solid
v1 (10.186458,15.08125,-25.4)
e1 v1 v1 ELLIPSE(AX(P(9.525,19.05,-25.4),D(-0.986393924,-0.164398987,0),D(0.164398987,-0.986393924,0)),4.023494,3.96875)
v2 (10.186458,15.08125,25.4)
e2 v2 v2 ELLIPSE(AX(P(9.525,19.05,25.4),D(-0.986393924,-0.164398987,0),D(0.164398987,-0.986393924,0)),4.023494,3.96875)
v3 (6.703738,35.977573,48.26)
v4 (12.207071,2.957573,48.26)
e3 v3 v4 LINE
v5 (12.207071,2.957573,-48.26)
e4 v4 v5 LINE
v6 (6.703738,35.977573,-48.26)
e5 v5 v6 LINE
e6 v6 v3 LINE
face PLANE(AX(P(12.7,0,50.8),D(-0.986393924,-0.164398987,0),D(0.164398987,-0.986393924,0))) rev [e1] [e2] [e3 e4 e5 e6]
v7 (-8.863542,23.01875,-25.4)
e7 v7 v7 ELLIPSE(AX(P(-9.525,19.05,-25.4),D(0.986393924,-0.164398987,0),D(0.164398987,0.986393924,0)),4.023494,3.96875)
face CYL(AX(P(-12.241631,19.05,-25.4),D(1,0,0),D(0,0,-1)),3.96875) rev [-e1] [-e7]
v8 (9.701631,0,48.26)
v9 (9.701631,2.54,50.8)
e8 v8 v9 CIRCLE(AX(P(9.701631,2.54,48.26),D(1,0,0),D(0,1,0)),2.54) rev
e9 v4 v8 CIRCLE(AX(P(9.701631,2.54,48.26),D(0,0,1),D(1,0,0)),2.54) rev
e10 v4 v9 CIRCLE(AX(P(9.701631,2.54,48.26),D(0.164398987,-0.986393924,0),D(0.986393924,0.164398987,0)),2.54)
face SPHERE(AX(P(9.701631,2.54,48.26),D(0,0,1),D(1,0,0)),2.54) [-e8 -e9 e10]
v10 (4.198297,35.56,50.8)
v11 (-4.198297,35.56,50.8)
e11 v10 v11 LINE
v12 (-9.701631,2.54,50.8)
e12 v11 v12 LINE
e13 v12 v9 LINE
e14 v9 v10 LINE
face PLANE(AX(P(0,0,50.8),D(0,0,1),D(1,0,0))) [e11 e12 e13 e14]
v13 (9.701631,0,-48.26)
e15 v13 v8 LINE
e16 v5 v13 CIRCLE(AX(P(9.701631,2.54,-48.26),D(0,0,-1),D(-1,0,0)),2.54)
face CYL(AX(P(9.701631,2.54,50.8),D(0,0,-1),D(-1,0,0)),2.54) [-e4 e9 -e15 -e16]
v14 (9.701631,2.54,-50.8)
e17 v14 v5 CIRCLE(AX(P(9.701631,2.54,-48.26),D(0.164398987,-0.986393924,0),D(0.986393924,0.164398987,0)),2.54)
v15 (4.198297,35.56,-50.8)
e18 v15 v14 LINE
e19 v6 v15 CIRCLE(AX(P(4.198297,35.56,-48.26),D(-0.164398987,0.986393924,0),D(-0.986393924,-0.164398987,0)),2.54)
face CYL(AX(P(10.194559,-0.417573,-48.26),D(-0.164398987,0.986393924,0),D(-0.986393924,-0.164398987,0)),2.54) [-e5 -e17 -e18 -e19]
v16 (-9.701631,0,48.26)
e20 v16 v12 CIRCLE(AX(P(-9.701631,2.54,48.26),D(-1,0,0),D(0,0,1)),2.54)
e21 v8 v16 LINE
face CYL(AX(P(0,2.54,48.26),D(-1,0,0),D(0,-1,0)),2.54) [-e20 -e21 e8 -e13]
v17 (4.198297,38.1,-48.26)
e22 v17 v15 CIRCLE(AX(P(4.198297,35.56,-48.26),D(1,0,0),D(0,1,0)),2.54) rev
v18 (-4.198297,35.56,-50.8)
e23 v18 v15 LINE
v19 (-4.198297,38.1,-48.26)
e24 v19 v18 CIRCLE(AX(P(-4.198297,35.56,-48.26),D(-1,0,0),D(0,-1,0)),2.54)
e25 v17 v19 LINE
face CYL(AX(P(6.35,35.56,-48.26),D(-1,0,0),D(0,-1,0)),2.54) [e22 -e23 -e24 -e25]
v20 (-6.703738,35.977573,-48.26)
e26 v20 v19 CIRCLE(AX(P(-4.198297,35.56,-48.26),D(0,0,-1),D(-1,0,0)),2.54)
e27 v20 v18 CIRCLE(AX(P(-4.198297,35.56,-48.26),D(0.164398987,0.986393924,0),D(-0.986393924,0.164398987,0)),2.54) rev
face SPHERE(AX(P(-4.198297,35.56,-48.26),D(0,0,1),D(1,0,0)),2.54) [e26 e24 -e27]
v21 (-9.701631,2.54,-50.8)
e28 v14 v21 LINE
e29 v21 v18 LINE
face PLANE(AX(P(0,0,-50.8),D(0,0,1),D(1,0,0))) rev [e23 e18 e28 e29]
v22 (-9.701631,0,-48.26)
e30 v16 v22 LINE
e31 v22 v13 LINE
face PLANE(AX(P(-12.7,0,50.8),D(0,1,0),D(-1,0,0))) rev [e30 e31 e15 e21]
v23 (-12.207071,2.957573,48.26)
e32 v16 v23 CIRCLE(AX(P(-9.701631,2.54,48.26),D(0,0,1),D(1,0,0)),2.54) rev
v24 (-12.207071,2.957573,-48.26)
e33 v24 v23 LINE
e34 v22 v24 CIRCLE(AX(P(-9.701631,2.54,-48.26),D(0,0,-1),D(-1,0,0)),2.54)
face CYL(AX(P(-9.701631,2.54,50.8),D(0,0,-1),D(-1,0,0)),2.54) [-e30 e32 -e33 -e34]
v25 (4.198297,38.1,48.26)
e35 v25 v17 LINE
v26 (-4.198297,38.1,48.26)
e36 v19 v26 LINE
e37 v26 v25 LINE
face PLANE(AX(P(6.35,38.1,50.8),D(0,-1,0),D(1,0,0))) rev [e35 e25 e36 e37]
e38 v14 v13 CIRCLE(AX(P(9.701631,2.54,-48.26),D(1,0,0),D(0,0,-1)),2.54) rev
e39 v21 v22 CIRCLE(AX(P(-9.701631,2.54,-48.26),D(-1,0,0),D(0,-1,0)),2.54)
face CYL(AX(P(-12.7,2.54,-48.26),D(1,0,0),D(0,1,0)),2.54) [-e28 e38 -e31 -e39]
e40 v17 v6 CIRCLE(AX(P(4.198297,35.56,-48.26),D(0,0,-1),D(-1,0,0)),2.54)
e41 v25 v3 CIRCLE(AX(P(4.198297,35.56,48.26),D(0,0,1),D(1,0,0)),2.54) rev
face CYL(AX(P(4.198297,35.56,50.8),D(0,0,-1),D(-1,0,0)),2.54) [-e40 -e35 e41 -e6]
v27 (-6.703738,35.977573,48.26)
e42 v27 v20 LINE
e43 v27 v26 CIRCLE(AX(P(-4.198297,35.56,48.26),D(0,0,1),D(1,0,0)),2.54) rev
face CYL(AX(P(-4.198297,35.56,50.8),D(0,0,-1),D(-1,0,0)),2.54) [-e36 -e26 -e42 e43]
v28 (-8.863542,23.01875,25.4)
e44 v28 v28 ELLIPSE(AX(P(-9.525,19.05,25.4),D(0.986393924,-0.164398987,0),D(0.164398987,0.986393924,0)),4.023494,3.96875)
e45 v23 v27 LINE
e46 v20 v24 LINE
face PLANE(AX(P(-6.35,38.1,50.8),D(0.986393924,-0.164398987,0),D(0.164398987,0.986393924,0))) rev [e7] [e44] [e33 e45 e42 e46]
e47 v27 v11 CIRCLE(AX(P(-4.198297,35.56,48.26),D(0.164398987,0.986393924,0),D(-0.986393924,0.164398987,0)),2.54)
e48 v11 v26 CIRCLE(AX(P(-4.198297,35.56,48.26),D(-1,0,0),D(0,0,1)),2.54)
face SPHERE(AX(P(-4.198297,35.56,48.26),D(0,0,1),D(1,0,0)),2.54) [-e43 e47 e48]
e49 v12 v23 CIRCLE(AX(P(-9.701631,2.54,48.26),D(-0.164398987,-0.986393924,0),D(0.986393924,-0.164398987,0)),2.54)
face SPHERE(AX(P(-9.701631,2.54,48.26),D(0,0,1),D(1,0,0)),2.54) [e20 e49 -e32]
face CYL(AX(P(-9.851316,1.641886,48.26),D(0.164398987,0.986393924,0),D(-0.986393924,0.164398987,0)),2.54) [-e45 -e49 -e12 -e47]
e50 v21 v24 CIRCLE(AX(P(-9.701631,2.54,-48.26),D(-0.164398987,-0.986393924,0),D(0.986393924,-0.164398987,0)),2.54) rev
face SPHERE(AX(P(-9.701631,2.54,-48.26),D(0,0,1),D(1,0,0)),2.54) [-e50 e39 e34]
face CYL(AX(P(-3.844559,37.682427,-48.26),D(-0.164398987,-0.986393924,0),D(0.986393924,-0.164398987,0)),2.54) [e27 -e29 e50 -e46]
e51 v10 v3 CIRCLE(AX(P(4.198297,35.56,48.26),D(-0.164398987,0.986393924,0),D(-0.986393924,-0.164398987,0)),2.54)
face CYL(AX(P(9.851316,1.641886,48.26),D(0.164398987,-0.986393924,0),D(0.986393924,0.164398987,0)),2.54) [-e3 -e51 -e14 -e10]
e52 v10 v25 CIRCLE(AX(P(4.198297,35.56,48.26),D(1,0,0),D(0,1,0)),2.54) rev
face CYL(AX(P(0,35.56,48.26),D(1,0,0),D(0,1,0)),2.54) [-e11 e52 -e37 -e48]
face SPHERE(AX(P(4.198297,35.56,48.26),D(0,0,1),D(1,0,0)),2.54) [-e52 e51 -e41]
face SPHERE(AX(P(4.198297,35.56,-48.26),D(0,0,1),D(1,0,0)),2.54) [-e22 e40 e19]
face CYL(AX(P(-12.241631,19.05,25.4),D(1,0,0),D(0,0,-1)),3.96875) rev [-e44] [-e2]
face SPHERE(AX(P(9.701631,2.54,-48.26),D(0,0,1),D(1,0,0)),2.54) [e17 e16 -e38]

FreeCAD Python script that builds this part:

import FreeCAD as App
import Part
import Sketcher
from FreeCAD import Vector
Q = App.Units.Quantity

doc = App.newDocument("Part")
body = doc.addObject("PartDesign::Body", "Body")

sketch1 = doc.addObject("Sketcher::SketchObject", "Sketch")
body.addObject(sketch1)
sketch1.AttachmentSupport = (doc.XY_Plane, [""])
sketch1.MapMode = "FlatFace"
sketch1.addGeometry(Part.LineSegment(Vector(-13, 0, 0), Vector(13, 0, 0)), False)
sketch1.addGeometry(Part.LineSegment(Vector(13, 0, 0), Vector(6, 38, 0)), False)
sketch1.addGeometry(Part.LineSegment(Vector(6, 38, 0), Vector(-6, 38, 0)), False)
sketch1.addGeometry(Part.LineSegment(Vector(-6, 38, 0), Vector(-13, 0, 0)), False)
sketch1.addConstraint(Sketcher.Constraint("Coincident", 0, 2, 1, 1))
sketch1.addConstraint(Sketcher.Constraint("Coincident", 1, 2, 2, 1))
sketch1.addConstraint(Sketcher.Constraint("Coincident", 2, 2, 3, 1))
sketch1.addConstraint(Sketcher.Constraint("Coincident", 3, 2, 0, 1))
sketch1.addConstraint(Sketcher.Constraint("Horizontal", 0))
sketch1.addConstraint(Sketcher.Constraint("Horizontal", 2))
sketch1.addConstraint(Sketcher.Constraint("Symmetric", 0, 2, 3, 2, -1, 1))
sketch1.addConstraint(Sketcher.Constraint("Equal", 1, 3))
sketch1.addConstraint(Sketcher.Constraint("DistanceX", 0, 1, 0, 2, Q("1 in")))
sketch1.addConstraint(Sketcher.Constraint("DistanceX", 2, 2, 2, 1, Q("0.5 in")))
sketch1.addConstraint(Sketcher.Constraint("DistanceY", -1, 1, 1, 2, Q("1.5 in")))
pad1 = doc.addObject("PartDesign::Pad", "Pad")
body.addObject(pad1)
pad1.Profile = sketch1
pad1.Length = Q("4 in")
pad1.Midplane = True
doc.recompute()

fillet = doc.addObject("PartDesign::Fillet", "Fillet")
body.addObject(fillet)
fillet.Base = (pad1, ["Edge1"])
fillet.UseAllEdges = True
fillet.Radius = Q("0.1 in")

sketch2 = doc.addObject("Sketcher::SketchObject", "Sketch001")
body.addObject(sketch2)
sketch2.AttachmentSupport = (doc.YZ_Plane, [""])
sketch2.MapMode = "FlatFace"
sketch2.addGeometry(Part.Circle(Vector(19.1, 25.4, 0), Vector(0, 0, 1), 4), False)
sketch2.addGeometry(Part.Circle(Vector(19.1, -25.4, 0), Vector(0, 0, 1), 4), False)
sketch2.addConstraint(Sketcher.Constraint("Equal", 0, 1))
sketch2.addConstraint(Sketcher.Constraint("Symmetric", 0, 3, 1, 3, -1))
sketch2.addConstraint(Sketcher.Constraint("Diameter", 0, Q("0.3125 in")))
sketch2.addConstraint(Sketcher.Constraint("DistanceY", -1, 1, 0, 3, Q("1 in")))
sketch2.addConstraint(Sketcher.Constraint("DistanceX", -1, 1, 0, 3, Q("0.75 in")))
pocket1 = doc.addObject("PartDesign::Pocket", "Pocket")
body.addObject(pocket1)
pocket1.Profile = sketch2
pocket1.Type = "ThroughAll"
pocket1.Midplane = True

doc.recompute()
